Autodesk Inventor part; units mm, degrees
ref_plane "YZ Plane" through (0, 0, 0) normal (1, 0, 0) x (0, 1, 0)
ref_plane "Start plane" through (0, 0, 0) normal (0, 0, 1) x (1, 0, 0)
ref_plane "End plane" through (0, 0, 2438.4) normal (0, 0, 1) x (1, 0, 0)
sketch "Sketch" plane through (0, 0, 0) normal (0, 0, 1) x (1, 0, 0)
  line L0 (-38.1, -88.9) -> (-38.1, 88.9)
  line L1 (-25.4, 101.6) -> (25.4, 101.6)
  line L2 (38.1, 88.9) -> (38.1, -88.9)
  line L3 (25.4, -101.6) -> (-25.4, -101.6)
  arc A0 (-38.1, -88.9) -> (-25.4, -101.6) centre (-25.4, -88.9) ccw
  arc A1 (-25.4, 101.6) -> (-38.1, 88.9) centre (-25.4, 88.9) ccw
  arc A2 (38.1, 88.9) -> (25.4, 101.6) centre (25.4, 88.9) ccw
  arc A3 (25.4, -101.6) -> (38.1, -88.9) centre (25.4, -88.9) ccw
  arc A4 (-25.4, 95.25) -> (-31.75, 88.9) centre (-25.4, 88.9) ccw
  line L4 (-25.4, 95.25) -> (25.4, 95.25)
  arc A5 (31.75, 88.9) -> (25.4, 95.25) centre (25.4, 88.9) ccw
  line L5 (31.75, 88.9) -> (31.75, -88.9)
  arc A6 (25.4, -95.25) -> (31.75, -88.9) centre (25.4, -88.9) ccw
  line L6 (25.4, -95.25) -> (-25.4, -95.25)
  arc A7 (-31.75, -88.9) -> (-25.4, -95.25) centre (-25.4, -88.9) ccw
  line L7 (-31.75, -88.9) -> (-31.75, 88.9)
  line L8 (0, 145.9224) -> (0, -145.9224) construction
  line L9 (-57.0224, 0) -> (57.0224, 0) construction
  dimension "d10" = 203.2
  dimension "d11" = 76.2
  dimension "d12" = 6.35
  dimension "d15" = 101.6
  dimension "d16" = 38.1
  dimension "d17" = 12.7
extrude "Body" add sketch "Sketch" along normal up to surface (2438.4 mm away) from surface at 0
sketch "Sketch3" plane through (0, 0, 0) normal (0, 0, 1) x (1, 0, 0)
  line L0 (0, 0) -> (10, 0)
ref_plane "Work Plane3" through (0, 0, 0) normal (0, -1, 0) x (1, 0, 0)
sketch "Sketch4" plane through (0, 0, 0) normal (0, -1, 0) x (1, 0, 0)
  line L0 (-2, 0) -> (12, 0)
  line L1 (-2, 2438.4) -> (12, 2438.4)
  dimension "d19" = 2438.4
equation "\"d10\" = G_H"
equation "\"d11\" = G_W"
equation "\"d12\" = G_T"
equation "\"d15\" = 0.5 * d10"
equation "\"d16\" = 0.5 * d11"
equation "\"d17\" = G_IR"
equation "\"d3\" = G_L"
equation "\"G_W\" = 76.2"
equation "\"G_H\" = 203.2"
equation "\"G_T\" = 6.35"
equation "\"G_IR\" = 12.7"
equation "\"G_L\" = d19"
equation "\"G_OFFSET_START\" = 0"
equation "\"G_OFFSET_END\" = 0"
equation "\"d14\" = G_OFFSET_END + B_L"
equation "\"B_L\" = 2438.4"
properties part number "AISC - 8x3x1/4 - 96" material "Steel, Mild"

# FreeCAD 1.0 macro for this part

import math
import FreeCAD as App
import Part
import Sketcher
from FreeCAD import Vector
Q = App.Units.Quantity

doc = App.newDocument("Part")
body = doc.addObject("PartDesign::Body", "Body")

# Sketch on XY plane
sketch1 = body.newObject("Sketcher::SketchObject", "Sketch")
sketch1.AttachmentSupport = (doc.getObject("XY_Plane"), [""])
sketch1.MapMode = "FlatFace"
sketch1.addGeometry([
    Part.LineSegment(Vector(-38, 89, 0), Vector(-38, -89, 0)),  # 0
    Part.ArcOfCircle(Part.Circle(Vector(-25, -89, 0), Vector(0, 0, 1), 13), math.radians(180), math.radians(270)),  # 1
    Part.LineSegment(Vector(-25, -102, 0), Vector(25, -102, 0)),  # 2
    Part.ArcOfCircle(Part.Circle(Vector(25, -89, 0), Vector(0, 0, 1), 13), math.radians(-90), math.radians(0)),  # 3
    Part.LineSegment(Vector(38, -89, 0), Vector(38, 89, 0)),  # 4
    Part.ArcOfCircle(Part.Circle(Vector(25, 89, 0), Vector(0, 0, 1), 13), math.radians(0), math.radians(90)),  # 5
    Part.LineSegment(Vector(25, 102, 0), Vector(-25, 102, 0)),  # 6
    Part.ArcOfCircle(Part.Circle(Vector(-25, 89, 0), Vector(0, 0, 1), 13), math.radians(90), math.radians(180)),  # 7
    Part.ArcOfCircle(Part.Circle(Vector(-25, 89, 0), Vector(0, 0, 1), 6), math.radians(90), math.radians(180)),  # 8
    Part.LineSegment(Vector(-25, 95, 0), Vector(25, 95, 0)),  # 9
    Part.ArcOfCircle(Part.Circle(Vector(25, 89, 0), Vector(0, 0, 1), 6), math.radians(0), math.radians(90)),  # 10
    Part.LineSegment(Vector(32, 89, 0), Vector(32, -89, 0)),  # 11
    Part.ArcOfCircle(Part.Circle(Vector(25, -89, 0), Vector(0, 0, 1), 6), math.radians(-90), math.radians(0)),  # 12
    Part.LineSegment(Vector(25, -95, 0), Vector(-25, -95, 0)),  # 13
    Part.ArcOfCircle(Part.Circle(Vector(-25, -89, 0), Vector(0, 0, 1), 6), math.radians(180), math.radians(270)),  # 14
    Part.LineSegment(Vector(-32, -89, 0), Vector(-32, 89, 0)),  # 15
], False)
sketch1.addConstraint([
    Sketcher.Constraint("Tangent", 0, 2, 1, 1),
    Sketcher.Constraint("Tangent", 1, 2, 2, 1),
    Sketcher.Constraint("Tangent", 2, 2, 3, 1),
    Sketcher.Constraint("Tangent", 3, 2, 4, 1),
    Sketcher.Constraint("Tangent", 4, 2, 5, 1),
    Sketcher.Constraint("Tangent", 5, 2, 6, 1),
    Sketcher.Constraint("Tangent", 6, 2, 7, 1),
    Sketcher.Constraint("Tangent", 7, 2, 0, 1),
    Sketcher.Constraint("Tangent", 8, 1, 9, 1),
    Sketcher.Constraint("Tangent", 9, 2, 10, 2),
    Sketcher.Constraint("Tangent", 10, 1, 11, 1),
    Sketcher.Constraint("Tangent", 11, 2, 12, 2),
    Sketcher.Constraint("Tangent", 12, 1, 13, 1),
    Sketcher.Constraint("Tangent", 13, 2, 14, 2),
    Sketcher.Constraint("Tangent", 14, 1, 15, 1),
    Sketcher.Constraint("Tangent", 15, 2, 8, 2),
    Sketcher.Constraint("Vertical", 0),
    Sketcher.Constraint("Horizontal", 2),
    Sketcher.Constraint("Vertical", 4),
    Sketcher.Constraint("Horizontal", 6),
    Sketcher.Constraint("Horizontal", 9),
    Sketcher.Constraint("Vertical", 11),
    Sketcher.Constraint("Horizontal", 13),
    Sketcher.Constraint("Vertical", 15),
    Sketcher.Constraint("Coincident", 8, 3, 7, 3),
    Sketcher.Constraint("Coincident", 10, 3, 5, 3),
    Sketcher.Constraint("Coincident", 12, 3, 3, 3),
    Sketcher.Constraint("Equal", 1, 3),
    Sketcher.Constraint("Equal", 3, 5),
    Sketcher.Constraint("Equal", 5, 7),
    Sketcher.Constraint("Equal", 12, 14),
    Sketcher.Constraint("Symmetric", 1, 3, 5, 3, -1, 1),
    Sketcher.Constraint("Radius", 1, Q("0.5 in")),
    Sketcher.Constraint("Radius", 8, Q("0.25 in")),
    Sketcher.Constraint("DistanceY", 1, 2, -1, 1, Q("4 in")),
    Sketcher.Constraint("DistanceX", 0, 2, -1, 1, Q("1.5 in")),
])
pad1 = body.newObject("PartDesign::Pad", "Pad")
pad1.Profile = sketch1
pad1.Length = Q("96 in")

doc.recompute()
